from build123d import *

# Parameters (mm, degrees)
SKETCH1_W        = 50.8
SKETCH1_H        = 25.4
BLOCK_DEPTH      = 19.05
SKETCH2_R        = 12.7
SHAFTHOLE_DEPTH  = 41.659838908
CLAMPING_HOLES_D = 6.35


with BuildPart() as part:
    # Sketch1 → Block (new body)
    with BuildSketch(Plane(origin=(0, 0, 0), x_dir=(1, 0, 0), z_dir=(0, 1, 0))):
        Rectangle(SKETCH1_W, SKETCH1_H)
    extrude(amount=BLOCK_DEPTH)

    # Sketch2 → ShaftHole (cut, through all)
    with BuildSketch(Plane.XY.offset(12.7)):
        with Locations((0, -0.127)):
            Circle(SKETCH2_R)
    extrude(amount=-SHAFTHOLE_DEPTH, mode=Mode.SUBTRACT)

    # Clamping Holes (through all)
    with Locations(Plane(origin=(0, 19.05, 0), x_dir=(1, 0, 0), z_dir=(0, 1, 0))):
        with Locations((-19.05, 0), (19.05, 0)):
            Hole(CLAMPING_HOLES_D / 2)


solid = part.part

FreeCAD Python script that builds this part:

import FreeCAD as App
import Part
import Sketcher

V = App.Vector
Q = App.Units.Quantity

doc = App.newDocument("Part")
body = doc.addObject("PartDesign::Body", "Body")

# Sketch on XZ plane
sketch1 = body.newObject("Sketcher::SketchObject", "Sketch")
sketch1.AttachmentSupport = (doc.getObject("XZ_Plane"), [""])
sketch1.MapMode = "FlatFace"
sketch1.addGeometry([
    Part.LineSegment(V(-25, -13, 0), V(-25, 13, 0)),
    Part.LineSegment(V(-25, 13, 0), V(25, 13, 0)),
    Part.LineSegment(V(25, 13, 0), V(25, -13, 0)),
    Part.LineSegment(V(25, -13, 0), V(-25, -13, 0)),
], False)
sketch1.addConstraint([
    Sketcher.Constraint("Coincident", 0, 2, 1, 1),
    Sketcher.Constraint("Coincident", 1, 2, 2, 1),
    Sketcher.Constraint("Coincident", 2, 2, 3, 1),
    Sketcher.Constraint("Coincident", 3, 2, 0, 1),
    Sketcher.Constraint("Vertical", 0),
    Sketcher.Constraint("Horizontal", 1),
    Sketcher.Constraint("Vertical", 2),
    Sketcher.Constraint("Horizontal", 3),
    Sketcher.Constraint("Symmetric", 0, 2, 2, 2, -1, 1),
    Sketcher.Constraint("DistanceX", 1, 1, 1, 2, Q("2 in")),
    Sketcher.Constraint("DistanceY", 0, 1, 0, 2, Q("1 in")),
])
pad1 = body.newObject("PartDesign::Pad", "Pad")
pad1.Profile = sketch1
pad1.Length = Q("0.75 in")
pad1.Reversed = True

# Sketch on XY plane
sketch2 = body.newObject("Sketcher::SketchObject", "Sketch001")
sketch2.AttachmentSupport = (doc.getObject("XY_Plane"), [""])
sketch2.MapMode = "FlatFace"
sketch2.AttachmentOffset = App.Placement(V(0, 0, 0.5 * 25.4), App.Rotation())
sketch2.addGeometry(Part.Circle(V(0, 0, 0), V(0, 0, 1), 13), False)
sketch2.addConstraint([
    Sketcher.Constraint("PointOnObject", 0, 3, -2),
    Sketcher.Constraint("Diameter", 0, Q("1 in")),
    Sketcher.Constraint("DistanceY", 0, 3, -1, 1, Q("0.005 in")),
])
pocket1 = body.newObject("PartDesign::Pocket", "Pocket")
pocket1.Profile = sketch2
pocket1.Type = "ThroughAll"

# Sketch on XZ plane
sketch3 = body.newObject("Sketcher::SketchObject", "Sketch002")
sketch3.AttachmentSupport = (doc.getObject("XZ_Plane"), [""])
sketch3.MapMode = "FlatFace"
sketch3.AttachmentOffset = App.Placement(V(0, 0, -0.75 * 25.4), App.Rotation())
sketch3.addGeometry([
    Part.Circle(V(-19.1, 0, 0), V(0, 0, 1), 3.2),
    Part.Circle(V(19.1, 0, 0), V(0, 0, 1), 3.2),
], False)
sketch3.addConstraint([
    Sketcher.Constraint("Equal", 0, 1),
    Sketcher.Constraint("Symmetric", 0, 3, 1, 3, -1, 1),
    Sketcher.Constraint("PointOnObject", 0, 3, -1),
    Sketcher.Constraint("Diameter", 0, Q("0.25 in")),
    Sketcher.Constraint("DistanceX", 0, 3, 1, 3, Q("1.5 in")),
])
doc.recompute()
hole = body.newObject("PartDesign::Hole", "Hole")
hole.Profile = sketch3
hole.ThreadType = "None"
hole.Diameter = Q("0.25 in")
hole.DepthType = "ThroughAll"
hole.Reversed = True

doc.recompute()
